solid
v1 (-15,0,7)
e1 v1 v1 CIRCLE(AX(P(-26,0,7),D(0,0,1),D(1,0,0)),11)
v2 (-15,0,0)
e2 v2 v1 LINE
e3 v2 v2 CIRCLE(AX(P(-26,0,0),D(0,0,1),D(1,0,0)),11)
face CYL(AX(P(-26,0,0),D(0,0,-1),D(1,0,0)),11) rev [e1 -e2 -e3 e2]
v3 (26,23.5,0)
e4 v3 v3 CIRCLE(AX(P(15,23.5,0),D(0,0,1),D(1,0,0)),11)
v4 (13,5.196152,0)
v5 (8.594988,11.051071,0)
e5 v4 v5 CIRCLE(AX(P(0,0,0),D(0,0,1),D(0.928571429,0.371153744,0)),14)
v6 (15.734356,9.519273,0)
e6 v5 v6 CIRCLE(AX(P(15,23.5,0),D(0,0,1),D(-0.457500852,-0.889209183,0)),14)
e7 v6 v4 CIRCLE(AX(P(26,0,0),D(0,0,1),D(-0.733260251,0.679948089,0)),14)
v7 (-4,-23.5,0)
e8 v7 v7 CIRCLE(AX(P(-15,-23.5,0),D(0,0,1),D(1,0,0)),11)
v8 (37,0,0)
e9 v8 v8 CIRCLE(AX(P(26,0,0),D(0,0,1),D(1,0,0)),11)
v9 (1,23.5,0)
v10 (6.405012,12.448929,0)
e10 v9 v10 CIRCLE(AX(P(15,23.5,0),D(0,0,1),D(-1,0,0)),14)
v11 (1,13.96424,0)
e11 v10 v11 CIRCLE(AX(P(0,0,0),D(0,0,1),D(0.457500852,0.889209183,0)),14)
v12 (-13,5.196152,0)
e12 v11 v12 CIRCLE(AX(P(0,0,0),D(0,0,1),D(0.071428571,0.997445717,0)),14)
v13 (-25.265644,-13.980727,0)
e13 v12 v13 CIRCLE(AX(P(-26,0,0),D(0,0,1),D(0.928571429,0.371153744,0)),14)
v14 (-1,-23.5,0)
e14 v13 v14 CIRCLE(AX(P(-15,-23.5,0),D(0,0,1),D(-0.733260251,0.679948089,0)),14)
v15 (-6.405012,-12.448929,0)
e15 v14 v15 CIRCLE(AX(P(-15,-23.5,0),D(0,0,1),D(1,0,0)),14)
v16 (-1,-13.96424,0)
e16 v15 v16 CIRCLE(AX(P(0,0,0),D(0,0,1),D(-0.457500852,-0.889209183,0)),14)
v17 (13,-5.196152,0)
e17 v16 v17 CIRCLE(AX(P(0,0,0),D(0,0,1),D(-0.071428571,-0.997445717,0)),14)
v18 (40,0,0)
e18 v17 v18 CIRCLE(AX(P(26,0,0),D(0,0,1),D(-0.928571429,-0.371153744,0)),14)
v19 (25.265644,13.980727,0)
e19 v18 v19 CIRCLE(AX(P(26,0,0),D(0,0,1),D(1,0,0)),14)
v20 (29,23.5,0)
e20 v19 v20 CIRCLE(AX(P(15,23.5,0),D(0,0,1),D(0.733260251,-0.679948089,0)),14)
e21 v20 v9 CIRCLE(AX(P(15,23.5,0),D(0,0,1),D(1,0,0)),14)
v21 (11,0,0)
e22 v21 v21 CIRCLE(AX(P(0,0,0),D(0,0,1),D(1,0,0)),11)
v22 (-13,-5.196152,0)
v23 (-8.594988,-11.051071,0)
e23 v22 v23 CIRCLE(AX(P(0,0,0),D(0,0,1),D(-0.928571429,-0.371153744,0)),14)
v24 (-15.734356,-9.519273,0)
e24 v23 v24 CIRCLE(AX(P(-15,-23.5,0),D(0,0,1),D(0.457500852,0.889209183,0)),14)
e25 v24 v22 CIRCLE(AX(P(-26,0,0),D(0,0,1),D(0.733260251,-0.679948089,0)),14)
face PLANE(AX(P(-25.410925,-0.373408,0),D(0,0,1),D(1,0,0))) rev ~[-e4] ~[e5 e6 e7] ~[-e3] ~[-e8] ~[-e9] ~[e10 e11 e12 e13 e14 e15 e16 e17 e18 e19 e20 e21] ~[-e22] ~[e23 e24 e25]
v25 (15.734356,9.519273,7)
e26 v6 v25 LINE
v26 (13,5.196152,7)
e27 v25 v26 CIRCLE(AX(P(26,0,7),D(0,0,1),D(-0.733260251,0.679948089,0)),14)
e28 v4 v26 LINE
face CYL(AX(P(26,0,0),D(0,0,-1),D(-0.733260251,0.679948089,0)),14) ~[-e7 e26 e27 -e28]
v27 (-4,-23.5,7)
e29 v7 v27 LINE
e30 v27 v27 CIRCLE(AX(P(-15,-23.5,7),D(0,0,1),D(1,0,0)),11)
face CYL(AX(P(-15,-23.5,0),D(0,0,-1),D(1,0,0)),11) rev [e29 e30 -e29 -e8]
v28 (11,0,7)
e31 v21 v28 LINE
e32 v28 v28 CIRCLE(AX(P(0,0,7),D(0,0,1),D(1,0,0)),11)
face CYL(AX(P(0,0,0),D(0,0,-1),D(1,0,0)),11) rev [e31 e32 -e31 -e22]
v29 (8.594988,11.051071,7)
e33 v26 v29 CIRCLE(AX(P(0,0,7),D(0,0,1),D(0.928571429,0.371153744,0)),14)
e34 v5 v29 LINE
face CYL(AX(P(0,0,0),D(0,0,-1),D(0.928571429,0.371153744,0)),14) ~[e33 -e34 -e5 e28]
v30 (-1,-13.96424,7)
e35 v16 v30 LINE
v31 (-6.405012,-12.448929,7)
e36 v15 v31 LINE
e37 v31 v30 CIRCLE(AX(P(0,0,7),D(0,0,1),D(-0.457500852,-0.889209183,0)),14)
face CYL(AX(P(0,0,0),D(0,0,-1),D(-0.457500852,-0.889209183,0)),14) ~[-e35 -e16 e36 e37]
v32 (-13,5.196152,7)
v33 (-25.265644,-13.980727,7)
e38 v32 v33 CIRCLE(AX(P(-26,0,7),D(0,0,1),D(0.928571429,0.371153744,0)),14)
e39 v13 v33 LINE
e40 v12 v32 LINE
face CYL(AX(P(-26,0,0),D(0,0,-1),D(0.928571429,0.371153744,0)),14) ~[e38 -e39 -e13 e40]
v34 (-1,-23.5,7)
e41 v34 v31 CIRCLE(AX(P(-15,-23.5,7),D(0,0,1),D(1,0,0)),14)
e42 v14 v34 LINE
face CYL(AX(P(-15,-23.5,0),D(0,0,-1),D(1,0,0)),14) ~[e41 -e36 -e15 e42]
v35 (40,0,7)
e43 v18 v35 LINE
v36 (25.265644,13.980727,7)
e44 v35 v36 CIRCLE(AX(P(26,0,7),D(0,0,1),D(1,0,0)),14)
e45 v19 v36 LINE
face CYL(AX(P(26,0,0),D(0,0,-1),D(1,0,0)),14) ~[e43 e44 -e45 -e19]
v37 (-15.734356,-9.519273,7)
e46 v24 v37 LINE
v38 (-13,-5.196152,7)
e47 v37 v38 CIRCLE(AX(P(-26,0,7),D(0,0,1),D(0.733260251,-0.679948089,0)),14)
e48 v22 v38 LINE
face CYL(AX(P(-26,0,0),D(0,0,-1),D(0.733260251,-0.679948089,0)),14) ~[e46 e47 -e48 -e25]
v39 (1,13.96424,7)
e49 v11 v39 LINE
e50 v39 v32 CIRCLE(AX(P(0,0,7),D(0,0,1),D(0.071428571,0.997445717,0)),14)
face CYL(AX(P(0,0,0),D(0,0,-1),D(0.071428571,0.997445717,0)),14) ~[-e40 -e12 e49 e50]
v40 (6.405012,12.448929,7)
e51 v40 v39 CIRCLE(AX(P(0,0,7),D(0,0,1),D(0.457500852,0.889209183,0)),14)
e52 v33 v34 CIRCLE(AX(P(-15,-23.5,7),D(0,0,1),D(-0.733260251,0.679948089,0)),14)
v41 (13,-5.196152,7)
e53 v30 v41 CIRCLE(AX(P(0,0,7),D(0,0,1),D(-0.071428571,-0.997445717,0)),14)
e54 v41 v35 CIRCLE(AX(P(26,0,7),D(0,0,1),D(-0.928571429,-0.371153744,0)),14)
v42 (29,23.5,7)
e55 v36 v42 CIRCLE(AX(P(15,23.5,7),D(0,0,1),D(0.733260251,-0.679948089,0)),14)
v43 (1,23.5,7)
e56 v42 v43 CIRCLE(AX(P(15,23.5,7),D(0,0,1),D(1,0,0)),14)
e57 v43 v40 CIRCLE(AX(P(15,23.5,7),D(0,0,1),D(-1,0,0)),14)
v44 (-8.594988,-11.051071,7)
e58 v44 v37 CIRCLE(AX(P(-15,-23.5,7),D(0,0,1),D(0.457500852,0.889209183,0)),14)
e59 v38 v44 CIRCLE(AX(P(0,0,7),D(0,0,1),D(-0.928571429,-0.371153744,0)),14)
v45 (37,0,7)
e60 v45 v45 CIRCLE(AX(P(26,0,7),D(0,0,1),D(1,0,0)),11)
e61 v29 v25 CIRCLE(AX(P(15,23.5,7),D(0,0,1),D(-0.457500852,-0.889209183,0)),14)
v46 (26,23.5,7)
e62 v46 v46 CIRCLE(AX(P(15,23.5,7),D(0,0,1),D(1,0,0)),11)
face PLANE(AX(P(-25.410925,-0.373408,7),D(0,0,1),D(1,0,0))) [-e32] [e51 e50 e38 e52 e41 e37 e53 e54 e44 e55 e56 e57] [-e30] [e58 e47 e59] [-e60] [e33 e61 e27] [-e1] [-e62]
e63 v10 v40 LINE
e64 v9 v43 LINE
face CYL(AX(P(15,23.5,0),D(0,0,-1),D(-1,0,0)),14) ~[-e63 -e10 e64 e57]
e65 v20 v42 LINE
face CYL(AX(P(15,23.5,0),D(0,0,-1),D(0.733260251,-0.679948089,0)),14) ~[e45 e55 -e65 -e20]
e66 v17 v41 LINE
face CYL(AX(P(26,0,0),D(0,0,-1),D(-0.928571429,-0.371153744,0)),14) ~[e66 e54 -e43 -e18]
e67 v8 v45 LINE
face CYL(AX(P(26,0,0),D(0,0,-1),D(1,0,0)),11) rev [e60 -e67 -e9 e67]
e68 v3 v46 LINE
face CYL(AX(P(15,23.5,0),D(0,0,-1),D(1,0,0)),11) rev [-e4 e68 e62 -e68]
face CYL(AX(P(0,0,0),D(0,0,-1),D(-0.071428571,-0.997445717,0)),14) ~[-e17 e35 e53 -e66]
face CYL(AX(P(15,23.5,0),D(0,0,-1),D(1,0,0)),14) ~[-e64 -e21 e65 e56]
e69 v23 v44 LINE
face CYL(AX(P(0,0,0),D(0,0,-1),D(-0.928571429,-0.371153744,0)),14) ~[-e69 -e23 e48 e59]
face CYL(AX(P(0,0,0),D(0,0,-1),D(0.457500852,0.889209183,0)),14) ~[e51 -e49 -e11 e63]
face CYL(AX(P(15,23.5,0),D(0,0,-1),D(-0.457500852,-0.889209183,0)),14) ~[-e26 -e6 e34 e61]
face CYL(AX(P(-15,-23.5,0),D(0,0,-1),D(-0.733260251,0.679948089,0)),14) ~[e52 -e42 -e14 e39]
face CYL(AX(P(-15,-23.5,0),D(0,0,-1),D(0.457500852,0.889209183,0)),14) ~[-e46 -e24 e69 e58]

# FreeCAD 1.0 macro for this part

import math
import FreeCAD as App
import Part
import Sketcher

V = App.Vector

doc = App.newDocument("Part")
body = doc.addObject("PartDesign::Body", "Body")

sketch1 = body.newObject("Sketcher::SketchObject", "Sketch")
sketch1.AttachmentSupport = (doc.getObject("XY_Plane"), [""])
sketch1.MapMode = "FlatFace"
sketch1.addGeometry([
    Part.ArcOfCircle(Part.Circle(V(15, 24, 0), V(0, 0, 1), 14), math.radians(180), math.radians(232)),
    Part.ArcOfCircle(Part.Circle(V(0, 0, 0), V(0, 0, 1), 14), math.radians(63), math.radians(86)),
    Part.ArcOfCircle(Part.Circle(V(0, 0, 0), V(0, 0, 1), 14), math.radians(86), math.radians(158)),
    Part.ArcOfCircle(Part.Circle(V(-26, 0, 0), V(0, 0, 1), 14), math.radians(22), math.radians(273)),
    Part.ArcOfCircle(Part.Circle(V(-15, -24, 0), V(0, 0, 1), 14), math.radians(137), math.radians(360)),
    Part.ArcOfCircle(Part.Circle(V(-15, -24, 0), V(0, 0, 1), 14), math.radians(0), math.radians(52)),
    Part.ArcOfCircle(Part.Circle(V(0, 0, 0), V(0, 0, 1), 14), math.radians(-117), math.radians(-94)),
    Part.ArcOfCircle(Part.Circle(V(0, 0, 0), V(0, 0, 1), 14), math.radians(-94), math.radians(-22)),
    Part.ArcOfCircle(Part.Circle(V(26, 0, 0), V(0, 0, 1), 14), math.radians(-158), math.radians(0)),
    Part.ArcOfCircle(Part.Circle(V(26, 0, 0), V(0, 0, 1), 14), math.radians(0), math.radians(93)),
    Part.ArcOfCircle(Part.Circle(V(15, 24, 0), V(0, 0, 1), 14), math.radians(-43), math.radians(0)),
    Part.ArcOfCircle(Part.Circle(V(15, 24, 0), V(0, 0, 1), 14), math.radians(0), math.radians(180)),
    Part.Circle(V(-15, -24, 0), V(0, 0, 1), 11),
    Part.Circle(V(-26, 0, 0), V(0, 0, 1), 11),
    Part.ArcOfCircle(Part.Circle(V(0, 0, 0), V(0, 0, 1), 14), math.radians(-158), math.radians(-128)),
    Part.ArcOfCircle(Part.Circle(V(-15, -24, 0), V(0, 0, 1), 14), math.radians(63), math.radians(93)),
    Part.ArcOfCircle(Part.Circle(V(-26, 0, 0), V(0, 0, 1), 14), math.radians(-43), math.radians(-22)),
    Part.Circle(V(0, 0, 0), V(0, 0, 1), 11),
    Part.Circle(V(26, 0, 0), V(0, 0, 1), 11),
    Part.ArcOfCircle(Part.Circle(V(0, 0, 0), V(0, 0, 1), 14), math.radians(22), math.radians(52)),
    Part.ArcOfCircle(Part.Circle(V(15, 24, 0), V(0, 0, 1), 14), math.radians(-117), math.radians(-87)),
    Part.ArcOfCircle(Part.Circle(V(26, 0, 0), V(0, 0, 1), 14), math.radians(137), math.radians(158)),
    Part.Circle(V(15, 24, 0), V(0, 0, 1), 11),
], False)
sketch1.addConstraint([
    Sketcher.Constraint("Coincident", 0, 2, 1, 1),
    Sketcher.Constraint("Tangent", 1, 2, 2, 1),
    Sketcher.Constraint("Coincident", 2, 2, 3, 1),
    Sketcher.Constraint("Coincident", 3, 2, 4, 1),
    Sketcher.Constraint("Tangent", 4, 2, 5, 1),
    Sketcher.Constraint("Coincident", 5, 2, 6, 1),
    Sketcher.Constraint("Tangent", 6, 2, 7, 1),
    Sketcher.Constraint("Coincident", 7, 2, 8, 1),
    Sketcher.Constraint("Tangent", 8, 2, 9, 1),
    Sketcher.Constraint("Coincident", 9, 2, 10, 1),
    Sketcher.Constraint("Tangent", 10, 2, 11, 1),
    Sketcher.Constraint("Tangent", 11, 2, 0, 1),
    Sketcher.Constraint("Coincident", 14, 2, 15, 1),
    Sketcher.Constraint("Coincident", 15, 2, 16, 1),
    Sketcher.Constraint("Coincident", 16, 2, 14, 1),
    Sketcher.Constraint("Coincident", 19, 2, 20, 1),
    Sketcher.Constraint("Coincident", 20, 2, 21, 1),
    Sketcher.Constraint("Coincident", 21, 2, 19, 1),
    Sketcher.Constraint("Coincident", 1, 3, -1, 1),
    Sketcher.Constraint("Coincident", 6, 3, -1, 1),
    Sketcher.Constraint("Coincident", 14, 3, -1, 1),
    Sketcher.Constraint("Coincident", 17, 3, -1, 1),
    Sketcher.Constraint("Coincident", 19, 3, -1, 1),
    Sketcher.Constraint("Coincident", 12, 3, 4, 3),
    Sketcher.Constraint("Coincident", 13, 3, 3, 3),
    Sketcher.Constraint("Coincident", 15, 3, 4, 3),
    Sketcher.Constraint("Coincident", 16, 3, 3, 3),
    Sketcher.Constraint("Coincident", 18, 3, 8, 3),
    Sketcher.Constraint("Coincident", 20, 3, 0, 3),
    Sketcher.Constraint("Coincident", 21, 3, 8, 3),
    Sketcher.Constraint("Coincident", 22, 3, 0, 3),
    Sketcher.Constraint("Equal", 0, 1),
    Sketcher.Constraint("Equal", 1, 2),
    Sketcher.Constraint("Equal", 2, 3),
    Sketcher.Constraint("Equal", 3, 4),
    Sketcher.Constraint("Equal", 4, 5),
    Sketcher.Constraint("Equal", 5, 6),
    Sketcher.Constraint("Equal", 6, 7),
    Sketcher.Constraint("Equal", 7, 8),
    Sketcher.Constraint("Equal", 8, 9),
    Sketcher.Constraint("Equal", 9, 10),
    Sketcher.Constraint("Equal", 10, 11),
    Sketcher.Constraint("Equal", 12, 13),
    Sketcher.Constraint("Equal", 11, 14),
    Sketcher.Constraint("Equal", 14, 15),
    Sketcher.Constraint("Equal", 15, 16),
    Sketcher.Constraint("Equal", 13, 17),
    Sketcher.Constraint("Equal", 17, 18),
    Sketcher.Constraint("Equal", 16, 19),
    Sketcher.Constraint("Equal", 19, 20),
    Sketcher.Constraint("Equal", 20, 21),
    Sketcher.Constraint("Equal", 18, 22),
    Sketcher.Constraint("Symmetric", 0, 3, 4, 3, -1, 1),
    Sketcher.Constraint("Symmetric", 3, 3, 8, 3, -1, 1),
    Sketcher.Constraint("PointOnObject", 3, 3, -1),
    Sketcher.Constraint("PointOnObject", 8, 2, -1),
    Sketcher.Constraint("Horizontal", 15, 3, 4, 2),
    Sketcher.Constraint("Horizontal", 22, 3, 10, 2),
    Sketcher.Constraint("Horizontal", 10, 2, 11, 2),
    Sketcher.Constraint("Vertical", 4, 2, 6, 2),
    Sketcher.Constraint("Vertical", 1, 2, 11, 2),
    Sketcher.Constraint("Diameter", 12, 22.0),
    Sketcher.Constraint("Radius", 0, 14.0),
    Sketcher.Constraint("DistanceX", -1, 1, 0, 3, 15.0),
    Sketcher.Constraint("DistanceX", 3, 3, -1, 1, 26.0),
    Sketcher.Constraint("DistanceY", 4, 3, 0, 3, 47.0),
])
pad1 = body.newObject("PartDesign::Pad", "Pad")
pad1.Profile = sketch1
pad1.Length = 7

doc.recompute()
